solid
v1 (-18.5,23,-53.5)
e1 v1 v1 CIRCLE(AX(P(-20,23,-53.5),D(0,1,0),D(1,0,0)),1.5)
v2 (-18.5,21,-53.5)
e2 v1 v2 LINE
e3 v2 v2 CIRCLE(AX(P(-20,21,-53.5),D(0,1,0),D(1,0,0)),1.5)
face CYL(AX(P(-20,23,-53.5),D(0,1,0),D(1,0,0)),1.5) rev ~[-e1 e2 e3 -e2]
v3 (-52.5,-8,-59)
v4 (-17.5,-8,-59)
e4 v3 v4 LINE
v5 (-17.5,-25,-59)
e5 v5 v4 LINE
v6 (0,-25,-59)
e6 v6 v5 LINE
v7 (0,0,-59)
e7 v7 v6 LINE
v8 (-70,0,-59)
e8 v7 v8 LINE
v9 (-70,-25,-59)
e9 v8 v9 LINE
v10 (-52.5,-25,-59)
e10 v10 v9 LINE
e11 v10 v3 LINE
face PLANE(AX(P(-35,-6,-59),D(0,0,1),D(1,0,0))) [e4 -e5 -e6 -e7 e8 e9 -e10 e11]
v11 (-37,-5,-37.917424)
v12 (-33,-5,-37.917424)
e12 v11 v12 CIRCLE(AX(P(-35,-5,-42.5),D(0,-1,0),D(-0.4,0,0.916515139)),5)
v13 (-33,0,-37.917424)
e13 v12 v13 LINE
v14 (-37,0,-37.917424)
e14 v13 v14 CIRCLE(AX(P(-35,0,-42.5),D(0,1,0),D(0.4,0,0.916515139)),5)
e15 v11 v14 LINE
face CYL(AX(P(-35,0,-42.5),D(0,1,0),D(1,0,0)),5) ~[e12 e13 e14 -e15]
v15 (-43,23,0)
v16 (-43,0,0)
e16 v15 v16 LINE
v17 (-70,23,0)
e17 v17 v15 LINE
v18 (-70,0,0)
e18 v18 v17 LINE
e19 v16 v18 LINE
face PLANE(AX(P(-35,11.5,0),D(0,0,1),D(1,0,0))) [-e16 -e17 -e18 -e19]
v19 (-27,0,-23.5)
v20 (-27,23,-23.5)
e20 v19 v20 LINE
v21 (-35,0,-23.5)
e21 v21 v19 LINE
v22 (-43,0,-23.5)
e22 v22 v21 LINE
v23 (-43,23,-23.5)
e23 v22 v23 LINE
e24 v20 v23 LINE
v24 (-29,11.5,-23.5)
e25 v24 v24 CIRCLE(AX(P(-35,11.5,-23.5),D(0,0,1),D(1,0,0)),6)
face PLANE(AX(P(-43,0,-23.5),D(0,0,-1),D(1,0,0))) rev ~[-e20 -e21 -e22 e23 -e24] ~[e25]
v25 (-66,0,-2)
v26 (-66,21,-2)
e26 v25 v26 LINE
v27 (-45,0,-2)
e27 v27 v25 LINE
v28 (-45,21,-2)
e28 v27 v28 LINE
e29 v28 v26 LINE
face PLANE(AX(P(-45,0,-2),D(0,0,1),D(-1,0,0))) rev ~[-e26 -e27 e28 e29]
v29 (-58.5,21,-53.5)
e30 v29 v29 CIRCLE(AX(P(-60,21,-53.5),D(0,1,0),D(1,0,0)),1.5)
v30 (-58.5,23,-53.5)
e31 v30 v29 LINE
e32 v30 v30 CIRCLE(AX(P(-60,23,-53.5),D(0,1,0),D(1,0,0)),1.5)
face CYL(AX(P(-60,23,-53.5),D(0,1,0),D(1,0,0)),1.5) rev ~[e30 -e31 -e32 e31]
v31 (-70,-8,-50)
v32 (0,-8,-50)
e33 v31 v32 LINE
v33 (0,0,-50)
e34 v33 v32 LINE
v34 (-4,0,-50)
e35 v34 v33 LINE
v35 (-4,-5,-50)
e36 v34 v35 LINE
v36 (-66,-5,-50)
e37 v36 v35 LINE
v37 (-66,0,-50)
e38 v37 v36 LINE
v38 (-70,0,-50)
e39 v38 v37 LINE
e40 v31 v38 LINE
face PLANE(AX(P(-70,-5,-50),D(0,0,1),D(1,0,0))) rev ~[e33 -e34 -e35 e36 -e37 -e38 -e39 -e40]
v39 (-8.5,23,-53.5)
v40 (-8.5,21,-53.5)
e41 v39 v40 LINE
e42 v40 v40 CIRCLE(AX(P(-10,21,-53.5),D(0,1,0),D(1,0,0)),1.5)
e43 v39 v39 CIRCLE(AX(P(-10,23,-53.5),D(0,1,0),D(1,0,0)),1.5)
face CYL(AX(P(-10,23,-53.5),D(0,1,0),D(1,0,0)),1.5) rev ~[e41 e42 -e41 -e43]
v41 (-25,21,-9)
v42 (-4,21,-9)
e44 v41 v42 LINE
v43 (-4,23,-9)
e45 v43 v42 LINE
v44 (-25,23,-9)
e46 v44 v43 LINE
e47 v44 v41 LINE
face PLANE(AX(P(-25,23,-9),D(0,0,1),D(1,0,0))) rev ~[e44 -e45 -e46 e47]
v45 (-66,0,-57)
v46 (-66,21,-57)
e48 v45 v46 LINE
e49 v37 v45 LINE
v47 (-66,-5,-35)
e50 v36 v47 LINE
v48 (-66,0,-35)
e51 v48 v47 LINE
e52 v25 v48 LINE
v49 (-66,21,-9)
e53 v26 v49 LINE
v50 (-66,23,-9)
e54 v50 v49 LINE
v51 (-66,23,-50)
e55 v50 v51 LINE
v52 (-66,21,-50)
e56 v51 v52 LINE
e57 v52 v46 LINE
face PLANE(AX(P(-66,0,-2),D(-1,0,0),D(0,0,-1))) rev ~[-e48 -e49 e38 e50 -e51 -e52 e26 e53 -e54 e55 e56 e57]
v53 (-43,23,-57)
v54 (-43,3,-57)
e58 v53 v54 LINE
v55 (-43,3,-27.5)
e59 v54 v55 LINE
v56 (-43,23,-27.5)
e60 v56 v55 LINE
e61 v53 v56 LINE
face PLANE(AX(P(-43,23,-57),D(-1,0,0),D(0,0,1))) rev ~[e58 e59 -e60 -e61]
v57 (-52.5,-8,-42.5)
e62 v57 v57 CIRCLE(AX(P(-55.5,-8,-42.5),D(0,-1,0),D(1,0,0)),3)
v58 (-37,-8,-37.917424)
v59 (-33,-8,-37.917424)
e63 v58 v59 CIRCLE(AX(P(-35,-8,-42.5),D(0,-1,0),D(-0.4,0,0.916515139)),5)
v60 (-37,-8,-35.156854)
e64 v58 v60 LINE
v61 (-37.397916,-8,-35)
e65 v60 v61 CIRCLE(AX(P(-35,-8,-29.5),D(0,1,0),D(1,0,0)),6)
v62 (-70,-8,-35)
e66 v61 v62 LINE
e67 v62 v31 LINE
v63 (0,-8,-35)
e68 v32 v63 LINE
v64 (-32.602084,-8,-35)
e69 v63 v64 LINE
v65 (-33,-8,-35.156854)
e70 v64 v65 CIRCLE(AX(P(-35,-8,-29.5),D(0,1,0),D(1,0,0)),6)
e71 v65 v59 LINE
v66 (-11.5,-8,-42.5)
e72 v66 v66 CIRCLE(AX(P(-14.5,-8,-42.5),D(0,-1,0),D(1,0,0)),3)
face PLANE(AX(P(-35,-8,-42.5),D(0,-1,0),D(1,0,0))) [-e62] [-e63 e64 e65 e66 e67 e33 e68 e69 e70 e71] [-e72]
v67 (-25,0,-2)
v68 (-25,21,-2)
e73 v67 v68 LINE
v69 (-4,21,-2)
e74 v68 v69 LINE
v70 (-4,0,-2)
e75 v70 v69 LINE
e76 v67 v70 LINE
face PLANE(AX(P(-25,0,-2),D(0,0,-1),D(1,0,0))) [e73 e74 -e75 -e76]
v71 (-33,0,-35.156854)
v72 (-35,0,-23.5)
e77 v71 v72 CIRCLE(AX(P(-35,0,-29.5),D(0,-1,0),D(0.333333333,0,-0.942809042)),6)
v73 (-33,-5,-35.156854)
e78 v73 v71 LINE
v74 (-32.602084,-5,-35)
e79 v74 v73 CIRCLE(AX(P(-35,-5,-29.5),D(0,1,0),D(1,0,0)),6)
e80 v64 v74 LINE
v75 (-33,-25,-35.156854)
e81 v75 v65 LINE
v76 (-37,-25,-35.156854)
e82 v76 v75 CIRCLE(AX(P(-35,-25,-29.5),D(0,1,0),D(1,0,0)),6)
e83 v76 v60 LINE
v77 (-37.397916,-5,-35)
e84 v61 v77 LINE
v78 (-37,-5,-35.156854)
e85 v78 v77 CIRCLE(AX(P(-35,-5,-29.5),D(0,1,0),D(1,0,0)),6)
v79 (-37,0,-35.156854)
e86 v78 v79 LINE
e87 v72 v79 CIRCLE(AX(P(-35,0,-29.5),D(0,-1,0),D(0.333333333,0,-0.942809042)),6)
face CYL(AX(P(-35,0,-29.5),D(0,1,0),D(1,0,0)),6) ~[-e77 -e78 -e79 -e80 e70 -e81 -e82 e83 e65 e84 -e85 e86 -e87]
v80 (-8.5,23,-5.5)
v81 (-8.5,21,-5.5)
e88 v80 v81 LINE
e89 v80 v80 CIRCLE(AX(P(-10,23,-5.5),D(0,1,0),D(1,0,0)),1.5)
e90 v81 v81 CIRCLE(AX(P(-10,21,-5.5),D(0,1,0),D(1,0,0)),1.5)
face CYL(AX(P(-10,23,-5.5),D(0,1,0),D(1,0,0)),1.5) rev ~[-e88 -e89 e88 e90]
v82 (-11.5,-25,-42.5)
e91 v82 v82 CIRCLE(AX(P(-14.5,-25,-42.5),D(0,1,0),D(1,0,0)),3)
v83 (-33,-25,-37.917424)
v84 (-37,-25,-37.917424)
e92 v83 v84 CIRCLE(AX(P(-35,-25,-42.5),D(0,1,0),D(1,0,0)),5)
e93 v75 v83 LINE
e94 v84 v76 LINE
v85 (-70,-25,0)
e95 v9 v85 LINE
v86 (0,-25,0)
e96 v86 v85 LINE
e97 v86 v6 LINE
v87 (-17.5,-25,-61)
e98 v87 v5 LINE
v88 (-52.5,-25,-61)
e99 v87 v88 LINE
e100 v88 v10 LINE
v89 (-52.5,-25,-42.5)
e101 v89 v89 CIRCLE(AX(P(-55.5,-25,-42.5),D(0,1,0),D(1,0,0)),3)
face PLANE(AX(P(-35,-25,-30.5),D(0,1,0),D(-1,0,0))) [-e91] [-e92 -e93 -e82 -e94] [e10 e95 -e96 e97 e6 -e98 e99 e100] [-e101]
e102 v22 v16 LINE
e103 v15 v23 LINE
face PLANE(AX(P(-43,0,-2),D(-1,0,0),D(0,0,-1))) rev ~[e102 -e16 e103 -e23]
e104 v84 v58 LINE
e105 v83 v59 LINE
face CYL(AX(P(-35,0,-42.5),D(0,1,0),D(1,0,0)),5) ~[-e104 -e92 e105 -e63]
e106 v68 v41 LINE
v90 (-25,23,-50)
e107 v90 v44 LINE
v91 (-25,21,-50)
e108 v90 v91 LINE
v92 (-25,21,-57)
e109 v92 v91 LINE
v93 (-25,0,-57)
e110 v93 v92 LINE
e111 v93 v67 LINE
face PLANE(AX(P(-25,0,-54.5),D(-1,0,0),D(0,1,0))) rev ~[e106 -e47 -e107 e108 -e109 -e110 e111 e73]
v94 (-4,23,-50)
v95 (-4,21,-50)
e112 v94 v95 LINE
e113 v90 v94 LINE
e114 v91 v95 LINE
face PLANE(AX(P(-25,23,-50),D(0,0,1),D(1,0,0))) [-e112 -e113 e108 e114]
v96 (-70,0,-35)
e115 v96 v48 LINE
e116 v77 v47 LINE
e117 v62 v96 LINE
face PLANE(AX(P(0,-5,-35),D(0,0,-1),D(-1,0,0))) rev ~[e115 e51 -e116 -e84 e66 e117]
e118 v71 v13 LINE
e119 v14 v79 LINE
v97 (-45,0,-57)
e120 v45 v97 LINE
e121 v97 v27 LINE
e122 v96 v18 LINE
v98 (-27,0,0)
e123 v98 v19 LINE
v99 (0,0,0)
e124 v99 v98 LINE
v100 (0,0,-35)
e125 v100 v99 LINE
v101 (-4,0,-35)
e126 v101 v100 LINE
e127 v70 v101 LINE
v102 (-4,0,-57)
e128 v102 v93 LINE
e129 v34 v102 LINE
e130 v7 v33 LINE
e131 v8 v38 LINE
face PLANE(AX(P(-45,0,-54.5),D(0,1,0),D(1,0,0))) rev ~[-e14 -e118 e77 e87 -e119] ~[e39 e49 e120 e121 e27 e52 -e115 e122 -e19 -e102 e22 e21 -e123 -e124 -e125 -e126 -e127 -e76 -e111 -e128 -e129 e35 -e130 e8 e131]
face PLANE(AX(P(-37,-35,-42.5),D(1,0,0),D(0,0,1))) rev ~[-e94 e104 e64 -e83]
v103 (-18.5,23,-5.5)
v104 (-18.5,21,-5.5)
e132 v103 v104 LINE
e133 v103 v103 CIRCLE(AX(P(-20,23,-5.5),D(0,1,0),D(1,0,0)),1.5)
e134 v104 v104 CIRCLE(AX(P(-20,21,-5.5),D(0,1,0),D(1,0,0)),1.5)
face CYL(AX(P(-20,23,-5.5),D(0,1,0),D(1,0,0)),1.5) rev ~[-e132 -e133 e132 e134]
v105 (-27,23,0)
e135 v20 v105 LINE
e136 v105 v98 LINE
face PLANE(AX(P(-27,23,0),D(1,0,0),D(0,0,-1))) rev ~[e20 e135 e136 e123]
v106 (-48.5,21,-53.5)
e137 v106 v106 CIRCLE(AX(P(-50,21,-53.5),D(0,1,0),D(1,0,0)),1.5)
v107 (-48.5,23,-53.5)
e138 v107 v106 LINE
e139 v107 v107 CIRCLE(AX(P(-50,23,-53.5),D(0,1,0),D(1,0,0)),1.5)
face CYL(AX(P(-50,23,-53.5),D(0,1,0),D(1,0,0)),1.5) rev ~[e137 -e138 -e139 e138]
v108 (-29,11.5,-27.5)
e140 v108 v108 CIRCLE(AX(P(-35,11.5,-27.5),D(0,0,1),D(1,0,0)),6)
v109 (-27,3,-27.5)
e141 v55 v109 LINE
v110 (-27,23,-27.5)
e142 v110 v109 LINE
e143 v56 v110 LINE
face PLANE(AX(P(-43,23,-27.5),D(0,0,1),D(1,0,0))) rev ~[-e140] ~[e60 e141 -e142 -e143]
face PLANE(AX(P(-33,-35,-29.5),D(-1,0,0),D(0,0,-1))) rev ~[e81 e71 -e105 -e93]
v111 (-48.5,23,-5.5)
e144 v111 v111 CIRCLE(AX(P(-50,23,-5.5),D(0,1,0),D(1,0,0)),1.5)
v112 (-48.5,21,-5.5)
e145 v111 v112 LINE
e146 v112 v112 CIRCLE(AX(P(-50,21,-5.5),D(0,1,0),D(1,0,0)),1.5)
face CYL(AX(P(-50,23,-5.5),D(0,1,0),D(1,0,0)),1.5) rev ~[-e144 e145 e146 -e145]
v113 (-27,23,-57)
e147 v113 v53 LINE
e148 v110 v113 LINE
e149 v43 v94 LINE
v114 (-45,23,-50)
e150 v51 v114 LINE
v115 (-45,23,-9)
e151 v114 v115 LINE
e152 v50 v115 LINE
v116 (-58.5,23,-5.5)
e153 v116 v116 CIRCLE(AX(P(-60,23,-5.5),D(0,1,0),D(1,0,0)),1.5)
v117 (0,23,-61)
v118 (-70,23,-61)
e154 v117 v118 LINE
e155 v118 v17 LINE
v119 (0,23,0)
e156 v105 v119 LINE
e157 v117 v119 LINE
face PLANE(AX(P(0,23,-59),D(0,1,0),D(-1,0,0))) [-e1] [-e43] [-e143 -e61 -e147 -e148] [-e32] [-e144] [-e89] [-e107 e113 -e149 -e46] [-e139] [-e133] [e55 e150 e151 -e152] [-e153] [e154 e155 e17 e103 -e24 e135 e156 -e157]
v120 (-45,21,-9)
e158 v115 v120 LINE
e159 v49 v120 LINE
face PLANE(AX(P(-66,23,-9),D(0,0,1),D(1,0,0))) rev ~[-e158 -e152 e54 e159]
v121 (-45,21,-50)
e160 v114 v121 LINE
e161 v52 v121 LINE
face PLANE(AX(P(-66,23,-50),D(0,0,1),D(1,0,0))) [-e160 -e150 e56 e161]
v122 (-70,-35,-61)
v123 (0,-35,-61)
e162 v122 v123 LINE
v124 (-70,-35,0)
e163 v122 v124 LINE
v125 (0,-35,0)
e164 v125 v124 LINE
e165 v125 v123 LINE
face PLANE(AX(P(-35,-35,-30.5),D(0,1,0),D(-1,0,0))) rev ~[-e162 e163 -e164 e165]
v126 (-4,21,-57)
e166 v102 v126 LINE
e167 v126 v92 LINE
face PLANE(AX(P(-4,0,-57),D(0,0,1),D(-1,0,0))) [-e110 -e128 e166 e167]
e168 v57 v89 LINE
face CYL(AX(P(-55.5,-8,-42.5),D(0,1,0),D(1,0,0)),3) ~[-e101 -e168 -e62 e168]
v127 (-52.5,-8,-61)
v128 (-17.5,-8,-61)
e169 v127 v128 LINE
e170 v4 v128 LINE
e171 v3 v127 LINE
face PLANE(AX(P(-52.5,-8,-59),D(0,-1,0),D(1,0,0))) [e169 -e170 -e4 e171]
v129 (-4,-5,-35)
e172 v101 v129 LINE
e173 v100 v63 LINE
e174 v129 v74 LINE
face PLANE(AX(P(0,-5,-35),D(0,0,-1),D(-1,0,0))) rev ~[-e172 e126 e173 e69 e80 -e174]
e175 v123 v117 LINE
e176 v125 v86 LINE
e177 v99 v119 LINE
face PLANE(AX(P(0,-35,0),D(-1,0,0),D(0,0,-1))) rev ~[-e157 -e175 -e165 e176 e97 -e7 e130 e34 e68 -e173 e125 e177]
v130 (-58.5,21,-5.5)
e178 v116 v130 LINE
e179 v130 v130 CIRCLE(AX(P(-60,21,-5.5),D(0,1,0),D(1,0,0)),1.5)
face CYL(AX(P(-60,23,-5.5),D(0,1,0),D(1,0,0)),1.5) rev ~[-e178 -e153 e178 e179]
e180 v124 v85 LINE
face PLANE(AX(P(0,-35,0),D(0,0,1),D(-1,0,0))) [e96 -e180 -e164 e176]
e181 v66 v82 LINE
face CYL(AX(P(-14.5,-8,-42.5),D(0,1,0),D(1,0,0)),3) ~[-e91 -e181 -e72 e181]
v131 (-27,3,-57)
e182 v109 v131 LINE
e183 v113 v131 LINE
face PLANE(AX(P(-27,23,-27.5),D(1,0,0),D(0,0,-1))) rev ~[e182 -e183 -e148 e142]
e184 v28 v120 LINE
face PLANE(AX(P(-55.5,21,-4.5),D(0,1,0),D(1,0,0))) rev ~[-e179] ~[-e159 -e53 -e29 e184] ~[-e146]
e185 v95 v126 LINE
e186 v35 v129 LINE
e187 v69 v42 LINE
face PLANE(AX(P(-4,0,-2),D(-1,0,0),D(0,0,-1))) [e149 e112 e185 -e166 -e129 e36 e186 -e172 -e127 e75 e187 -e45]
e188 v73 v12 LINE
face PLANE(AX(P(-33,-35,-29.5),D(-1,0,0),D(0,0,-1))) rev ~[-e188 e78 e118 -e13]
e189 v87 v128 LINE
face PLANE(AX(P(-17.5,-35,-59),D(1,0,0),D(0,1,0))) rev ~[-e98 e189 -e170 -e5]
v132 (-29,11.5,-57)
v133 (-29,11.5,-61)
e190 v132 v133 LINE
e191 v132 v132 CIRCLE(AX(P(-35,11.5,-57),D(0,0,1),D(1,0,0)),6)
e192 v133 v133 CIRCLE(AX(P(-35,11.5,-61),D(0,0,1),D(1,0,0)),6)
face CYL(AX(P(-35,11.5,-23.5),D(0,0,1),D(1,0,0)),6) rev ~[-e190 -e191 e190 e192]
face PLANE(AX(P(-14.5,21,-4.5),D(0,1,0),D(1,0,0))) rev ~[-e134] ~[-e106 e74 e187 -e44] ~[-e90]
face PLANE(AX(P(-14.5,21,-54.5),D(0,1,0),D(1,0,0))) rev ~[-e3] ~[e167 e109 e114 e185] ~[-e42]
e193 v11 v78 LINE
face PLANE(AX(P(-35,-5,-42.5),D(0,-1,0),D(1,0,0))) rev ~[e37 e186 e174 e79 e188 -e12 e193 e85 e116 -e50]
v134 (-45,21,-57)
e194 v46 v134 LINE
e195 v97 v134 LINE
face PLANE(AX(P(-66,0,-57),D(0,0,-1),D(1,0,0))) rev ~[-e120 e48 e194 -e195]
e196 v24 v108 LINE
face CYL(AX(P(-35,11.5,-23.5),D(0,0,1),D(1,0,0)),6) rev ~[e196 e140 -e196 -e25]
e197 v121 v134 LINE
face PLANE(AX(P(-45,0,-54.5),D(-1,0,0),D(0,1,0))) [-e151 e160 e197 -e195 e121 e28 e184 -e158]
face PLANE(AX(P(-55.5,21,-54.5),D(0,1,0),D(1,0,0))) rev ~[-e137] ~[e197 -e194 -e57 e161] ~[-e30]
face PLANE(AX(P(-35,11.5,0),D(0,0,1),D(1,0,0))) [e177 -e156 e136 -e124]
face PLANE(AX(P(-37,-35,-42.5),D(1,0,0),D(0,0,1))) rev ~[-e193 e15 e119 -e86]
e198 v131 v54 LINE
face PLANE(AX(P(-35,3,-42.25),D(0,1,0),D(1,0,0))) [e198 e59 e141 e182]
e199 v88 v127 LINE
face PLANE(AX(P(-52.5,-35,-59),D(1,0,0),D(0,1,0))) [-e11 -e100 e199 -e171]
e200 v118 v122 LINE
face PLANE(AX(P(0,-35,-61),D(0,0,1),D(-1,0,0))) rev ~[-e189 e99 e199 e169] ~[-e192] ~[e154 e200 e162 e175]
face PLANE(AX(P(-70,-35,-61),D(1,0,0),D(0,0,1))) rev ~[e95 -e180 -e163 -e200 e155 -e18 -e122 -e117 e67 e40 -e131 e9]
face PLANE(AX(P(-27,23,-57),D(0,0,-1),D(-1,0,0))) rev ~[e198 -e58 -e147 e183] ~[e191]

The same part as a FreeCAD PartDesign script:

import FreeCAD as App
import Part
import Sketcher

V = App.Vector
Q = App.Units.Quantity

doc = App.newDocument("Part")
body = doc.addObject("PartDesign::Body", "Body")

sketch1 = body.newObject("Sketcher::SketchObject", "Sketch")
sketch1.AttachmentSupport = (doc.getObject("XZ_Plane"), [""])
sketch1.MapMode = "FlatFace"
sketch1.addGeometry([
    Part.LineSegment(V(-66, -57, 0), V(-45, -57, 0)),
    Part.LineSegment(V(-45, -57, 0), V(-45, -59, 0)),
    Part.LineSegment(V(-45, -59, 0), V(-70, -59, 0)),
    Part.LineSegment(V(-70, -59, 0), V(-70, 0, 0)),
    Part.LineSegment(V(-70, 0, 0), V(-45, 0, 0)),
    Part.LineSegment(V(-45, 0, 0), V(-45, -2, 0)),
    Part.LineSegment(V(-45, -2, 0), V(-66, -2, 0)),
    Part.LineSegment(V(-66, -2, 0), V(-66, -57, 0)),
], False)
sketch1.addConstraint([
    Sketcher.Constraint("Coincident", 0, 2, 1, 1),
    Sketcher.Constraint("Coincident", 1, 2, 2, 1),
    Sketcher.Constraint("Coincident", 2, 2, 3, 1),
    Sketcher.Constraint("Coincident", 3, 2, 4, 1),
    Sketcher.Constraint("Coincident", 4, 2, 5, 1),
    Sketcher.Constraint("Coincident", 5, 2, 6, 1),
    Sketcher.Constraint("Coincident", 6, 2, 7, 1),
    Sketcher.Constraint("Coincident", 7, 2, 0, 1),
    Sketcher.Constraint("Horizontal", 0),
    Sketcher.Constraint("Vertical", 1),
    Sketcher.Constraint("Horizontal", 2),
    Sketcher.Constraint("Vertical", 3),
    Sketcher.Constraint("Horizontal", 4),
    Sketcher.Constraint("Vertical", 5),
    Sketcher.Constraint("Horizontal", 6),
    Sketcher.Constraint("Vertical", 7),
    Sketcher.Constraint("PointOnObject", 3, 2, -1),
    Sketcher.Constraint("Vertical", 1, 2, 4, 2),
    Sketcher.Constraint("Equal", 1, 5),
    Sketcher.Constraint("DistanceX", 0, 1, 0, 2, Q("21 mm")),
    Sketcher.Constraint("DistanceX", 2, 2, 2, 1, Q("25 mm")),
    Sketcher.Constraint("DistanceY", 1, 2, 1, 1, Q("2 mm")),
    Sketcher.Constraint("DistanceY", 3, 1, 3, 2, Q("59 mm")),
    Sketcher.Constraint("DistanceX", 0, 2, -1, 1, Q("45 mm")),
])
pad1 = body.newObject("PartDesign::Pad", "Pad")
pad1.Profile = sketch1
pad1.Length = 23
pad1.Reversed = True
body2 = doc.addObject("PartDesign::Body", "Body001")

sketch2 = body2.newObject("Sketcher::SketchObject", "Sketch001")
sketch2.AttachmentSupport = (doc.getObject("XZ_Plane001"), [""])
sketch2.MapMode = "FlatFace"
sketch2.addGeometry([
    Part.LineSegment(V(-4, -2, 0), V(-25, -2, 0)),
    Part.LineSegment(V(-25, -2, 0), V(-25, 0, 0)),
    Part.LineSegment(V(-25, 0, 0), V(0, 0, 0)),
    Part.LineSegment(V(0, 0, 0), V(0, -59, 0)),
    Part.LineSegment(V(0, -59, 0), V(-25, -59, 0)),
    Part.LineSegment(V(-25, -59, 0), V(-25, -57, 0)),
    Part.LineSegment(V(-25, -57, 0), V(-4, -57, 0)),
    Part.LineSegment(V(-4, -57, 0), V(-4, -2, 0)),
], False)
sketch2.addConstraint([
    Sketcher.Constraint("Coincident", 0, 2, 1, 1),
    Sketcher.Constraint("Coincident", 1, 2, 2, 1),
    Sketcher.Constraint("Coincident", 2, 2, 3, 1),
    Sketcher.Constraint("Coincident", 3, 2, 4, 1),
    Sketcher.Constraint("Coincident", 4, 2, 5, 1),
    Sketcher.Constraint("Coincident", 5, 2, 6, 1),
    Sketcher.Constraint("Coincident", 6, 2, 7, 1),
    Sketcher.Constraint("Coincident", 7, 2, 0, 1),
    Sketcher.Constraint("Horizontal", 0),
    Sketcher.Constraint("Vertical", 1),
    Sketcher.Constraint("Horizontal", 2),
    Sketcher.Constraint("Vertical", 3),
    Sketcher.Constraint("Horizontal", 4),
    Sketcher.Constraint("Vertical", 5),
    Sketcher.Constraint("Horizontal", 6),
    Sketcher.Constraint("Vertical", 7),
    Sketcher.Constraint("Coincident", 2, 2, -1, 1),
    Sketcher.Constraint("Vertical", 1, 2, 4, 2),
    Sketcher.Constraint("Equal", 1, 5),
    Sketcher.Constraint("DistanceX", 0, 2, 0, 1, Q("21 mm")),
    Sketcher.Constraint("DistanceX", 2, 1, 2, 2, Q("25 mm")),
    Sketcher.Constraint("DistanceY", 1, 1, 1, 2, Q("2 mm")),
    Sketcher.Constraint("DistanceY", 3, 2, 3, 1, Q("59 mm")),
])
pad2 = body2.newObject("PartDesign::Pad", "Pad001")
pad2.Profile = sketch2
pad2.Length = 23
pad2.Reversed = True
body.AllowCompound = True
doc.recompute()

boolean = body.newObject("PartDesign::Boolean", "Boolean")
boolean.Type = "Fuse"
boolean.addObjects([body2])

sketch3 = body.newObject("Sketcher::SketchObject", "Sketch002")
sketch3.AttachmentSupport = (doc.getObject("XZ_Plane"), [""])
sketch3.MapMode = "FlatFace"
sketch3.AttachmentOffset = App.Placement(V(0, 0, -23), App.Rotation())
sketch3.addGeometry([
    Part.LineSegment(V(-66, -59, 0), V(-66, -50, 0)),
    Part.LineSegment(V(-66, -50, 0), V(-45, -50, 0)),
    Part.LineSegment(V(-45, -50, 0), V(-45, -59, 0)),
    Part.LineSegment(V(-45, -59, 0), V(-66, -59, 0)),
    Part.LineSegment(V(-25, -59, 0), V(-25, -50, 0)),
    Part.LineSegment(V(-25, -50, 0), V(-4, -50, 0)),
    Part.LineSegment(V(-4, -50, 0), V(-4, -59, 0)),
    Part.LineSegment(V(-4, -59, 0), V(-25, -59, 0)),
    Part.LineSegment(V(-66, -9, 0), V(-66, 0, 0)),
    Part.LineSegment(V(-66, 0, 0), V(-45, 0, 0)),
    Part.LineSegment(V(-45, 0, 0), V(-45, -9, 0)),
    Part.LineSegment(V(-45, -9, 0), V(-66, -9, 0)),
    Part.LineSegment(V(-25, -9, 0), V(-25, 0, 0)),
    Part.LineSegment(V(-25, 0, 0), V(-4, 0, 0)),
    Part.LineSegment(V(-4, 0, 0), V(-4, -9, 0)),
    Part.LineSegment(V(-4, -9, 0), V(-25, -9, 0)),
], False)
sketch3.addConstraint([
    Sketcher.Constraint("Coincident", 0, 2, 1, 1),
    Sketcher.Constraint("Coincident", 1, 2, 2, 1),
    Sketcher.Constraint("Coincident", 2, 2, 3, 1),
    Sketcher.Constraint("Coincident", 3, 2, 0, 1),
    Sketcher.Constraint("Coincident", 4, 2, 5, 1),
    Sketcher.Constraint("Coincident", 5, 2, 6, 1),
    Sketcher.Constraint("Coincident", 6, 2, 7, 1),
    Sketcher.Constraint("Coincident", 7, 2, 4, 1),
    Sketcher.Constraint("Coincident", 8, 2, 9, 1),
    Sketcher.Constraint("Coincident", 9, 2, 10, 1),
    Sketcher.Constraint("Coincident", 10, 2, 11, 1),
    Sketcher.Constraint("Coincident", 11, 2, 8, 1),
    Sketcher.Constraint("Coincident", 12, 2, 13, 1),
    Sketcher.Constraint("Coincident", 13, 2, 14, 1),
    Sketcher.Constraint("Coincident", 14, 2, 15, 1),
    Sketcher.Constraint("Coincident", 15, 2, 12, 1),
    Sketcher.Constraint("Vertical", 0),
    Sketcher.Constraint("Horizontal", 1),
    Sketcher.Constraint("Vertical", 2),
    Sketcher.Constraint("Horizontal", 3),
    Sketcher.Constraint("Vertical", 4),
    Sketcher.Constraint("Horizontal", 5),
    Sketcher.Constraint("Vertical", 6),
    Sketcher.Constraint("Horizontal", 7),
    Sketcher.Constraint("Vertical", 8),
    Sketcher.Constraint("Horizontal", 9),
    Sketcher.Constraint("Vertical", 10),
    Sketcher.Constraint("Horizontal", 11),
    Sketcher.Constraint("Vertical", 12),
    Sketcher.Constraint("Horizontal", 13),
    Sketcher.Constraint("Vertical", 14),
    Sketcher.Constraint("Horizontal", 15),
    Sketcher.Constraint("PointOnObject", 8, 2, -1),
    Sketcher.Constraint("PointOnObject", 12, 2, -1),
    Sketcher.Constraint("Horizontal", 1, 2, 4, 2),
    Sketcher.Constraint("Horizontal", 3, 2, 6, 2),
    Sketcher.Constraint("Horizontal", 11, 2, 14, 2),
    Sketcher.Constraint("Vertical", 3, 2, 8, 2),
    Sketcher.Constraint("Vertical", 2, 2, 9, 2),
    Sketcher.Constraint("Vertical", 7, 2, 12, 2),
    Sketcher.Constraint("Vertical", 6, 2, 13, 2),
    Sketcher.Constraint("Equal", 3, 5),
    Sketcher.Constraint("Equal", 6, 8),
    Sketcher.Constraint("DistanceX", 1, 1, 1, 2, Q("21 mm")),
    Sketcher.Constraint("DistanceY", 0, 1, 0, 2, Q("9 mm")),
    Sketcher.Constraint("DistanceX", 0, 2, -1, 1, Q("66 mm")),
    Sketcher.Constraint("DistanceY", 0, 2, -1, 1, Q("50 mm")),
    Sketcher.Constraint("DistanceX", 4, 2, -1, 1, Q("25 mm")),
])
pad3 = body.newObject("PartDesign::Pad", "Pad002")
pad3.Profile = sketch3
pad3.Length = 2

sketch4 = body.newObject("Sketcher::SketchObject", "Sketch003")
sketch4.AttachmentSupport = (doc.getObject("XZ_Plane"), [""])
sketch4.MapMode = "FlatFace"
sketch4.AttachmentOffset = App.Placement(V(0, 0, -23), App.Rotation())
sketch4.addGeometry([
    Part.Circle(V(-50, -53.5, 0), V(0, 0, 1), 1.5),
    Part.Circle(V(-60, -53.5, 0), V(0, 0, 1), 1.5),
    Part.Circle(V(-20, -53.5, 0), V(0, 0, 1), 1.5),
    Part.Circle(V(-10, -53.5, 0), V(0, 0, 1), 1.5),
    Part.Circle(V(-60, -5.5, 0), V(0, 0, 1), 1.5),
    Part.Circle(V(-50, -5.5, 0), V(0, 0, 1), 1.5),
    Part.Circle(V(-20, -5.5, 0), V(0, 0, 1), 1.5),
    Part.Circle(V(-10, -5.5, 0), V(0, 0, 1), 1.5),
], False)
sketch4.addConstraint([
    Sketcher.Constraint("Equal", 0, 1),
    Sketcher.Constraint("Equal", 1, 2),
    Sketcher.Constraint("Equal", 2, 3),
    Sketcher.Constraint("Equal", 3, 4),
    Sketcher.Constraint("Equal", 4, 5),
    Sketcher.Constraint("Equal", 5, 6),
    Sketcher.Constraint("Equal", 6, 7),
    Sketcher.Constraint("Horizontal", 0, 3, 1, 3),
    Sketcher.Constraint("Horizontal", 1, 3, 2, 3),
    Sketcher.Constraint("Horizontal", 2, 3, 3, 3),
    Sketcher.Constraint("Horizontal", 4, 3, 5, 3),
    Sketcher.Constraint("Horizontal", 5, 3, 6, 3),
    Sketcher.Constraint("Horizontal", 6, 3, 7, 3),
    Sketcher.Constraint("Vertical", 1, 3, 4, 3),
    Sketcher.Constraint("Vertical", 0, 3, 5, 3),
    Sketcher.Constraint("Vertical", 2, 3, 6, 3),
    Sketcher.Constraint("Vertical", 3, 3, 7, 3),
    Sketcher.Constraint("Diameter", 0, Q("3 mm")),
    Sketcher.Constraint("DistanceX", 0, 3, -1, 1, Q("50 mm")),
    Sketcher.Constraint("DistanceX", 1, 3, -1, 1, Q("60 mm")),
    Sketcher.Constraint("DistanceX", 2, 3, -1, 1, Q("20 mm")),
    Sketcher.Constraint("DistanceX", 3, 3, -1, 1, Q("10 mm")),
    Sketcher.Constraint("DistanceY", 1, 3, 4, 3, Q("48 mm")),
    Sketcher.Constraint("DistanceY", 0, 3, -1, 1, Q("53.5 mm")),
])
pocket1 = body.newObject("PartDesign::Pocket", "Pocket")
pocket1.Profile = sketch4
pocket1.Length = 2
pocket1.Reversed = True

sketch5 = body.newObject("Sketcher::SketchObject", "Sketch004")
sketch5.AttachmentSupport = (doc.getObject("YZ_Plane"), [""])
sketch5.MapMode = "FlatFace"
sketch5.AttachmentOffset = App.Placement(V(0, 0, -25), App.Rotation())
sketch5.addGeometry([
    Part.LineSegment(V(23, -59, 0), V(0, -59, 0)),
    Part.LineSegment(V(0, -59, 0), V(0, -54.5, 0)),
    Part.LineSegment(V(0, -54.5, 0), V(23, -54.5, 0)),
    Part.LineSegment(V(23, -54.5, 0), V(23, -59, 0)),
], False)
sketch5.addConstraint([
    Sketcher.Constraint("Coincident", 0, 2, 1, 1),
    Sketcher.Constraint("Coincident", 1, 2, 2, 1),
    Sketcher.Constraint("Coincident", 2, 2, 3, 1),
    Sketcher.Constraint("Coincident", 3, 2, 0, 1),
    Sketcher.Constraint("Horizontal", 0),
    Sketcher.Constraint("Vertical", 1),
    Sketcher.Constraint("Horizontal", 2),
    Sketcher.Constraint("Vertical", 3),
    Sketcher.Constraint("PointOnObject", 0, 2, -2),
    Sketcher.Constraint("DistanceX", 0, 2, 0, 1, Q("23 mm")),
    Sketcher.Constraint("DistanceY", 1, 1, 1, 2, Q("4.5 mm")),
    Sketcher.Constraint("DistanceY", 0, 2, -1, 1, Q("59 mm")),
])
pad4 = body.newObject("PartDesign::Pad", "Pad003")
pad4.Profile = sketch5
pad4.Length = 20
pad4.Reversed = True

sketch6 = body.newObject("Sketcher::SketchObject", "Sketch005")
sketch6.AttachmentSupport = (doc.getObject("XY_Plane"), [""])
sketch6.MapMode = "FlatFace"
sketch6.AttachmentOffset = App.Placement(V(0, 0, -54.5), App.Rotation())
sketch6.addGeometry([
    Part.LineSegment(V(-45, 23, 0), V(-45, 0, 0)),
    Part.LineSegment(V(-45, 0, 0), V(-25, 0, 0)),
    Part.LineSegment(V(-25, 0, 0), V(-25, 23, 0)),
    Part.LineSegment(V(-25, 23, 0), V(-45, 23, 0)),
], False)
sketch6.addConstraint([
    Sketcher.Constraint("Coincident", 0, 2, 1, 1),
    Sketcher.Constraint("Coincident", 1, 2, 2, 1),
    Sketcher.Constraint("Coincident", 2, 2, 3, 1),
    Sketcher.Constraint("Coincident", 3, 2, 0, 1),
    Sketcher.Constraint("Vertical", 0),
    Sketcher.Constraint("Horizontal", 1),
    Sketcher.Constraint("Vertical", 2),
    Sketcher.Constraint("Horizontal", 3),
    Sketcher.Constraint("PointOnObject", 0, 2, -1),
    Sketcher.Constraint("DistanceX", 1, 1, 1, 2, Q("20 mm")),
    Sketcher.Constraint("DistanceY", 0, 2, 0, 1, Q("23 mm")),
    Sketcher.Constraint("DistanceX", 0, 2, -1, 1, Q("45 mm")),
])
pad5 = body.newObject("PartDesign::Pad", "Pad004")
pad5.Profile = sketch6
pad5.Length = 54.5

sketch7 = body.newObject("Sketcher::SketchObject", "Sketch006")
sketch7.AttachmentSupport = (doc.getObject("XZ_Plane"), [""])
sketch7.MapMode = "FlatFace"
sketch7.addGeometry(Part.Circle(V(-35, -29.5, 0), V(0, 0, 1), 6), False)
sketch7.addConstraint([
    Sketcher.Constraint("Diameter", 0, Q("12 mm")),
    Sketcher.Constraint("DistanceX", 0, 3, -1, 1, Q("35 mm")),
    Sketcher.Constraint("DistanceY", 0, 3, -1, 1, Q("29.5 mm")),
])
pad6 = body.newObject("PartDesign::Pad", "Pad005")
pad6.Profile = sketch7
pad6.Length = 35

sketch8 = body.newObject("Sketcher::SketchObject", "Sketch007")
sketch8.AttachmentSupport = (doc.getObject("XZ_Plane"), [""])
sketch8.MapMode = "FlatFace"
sketch8.addGeometry([
    Part.LineSegment(V(-4, -35, 0), V(-4, -50, 0)),
    Part.LineSegment(V(-4, -50, 0), V(0, -50, 0)),
    Part.LineSegment(V(0, -50, 0), V(0, -35, 0)),
    Part.LineSegment(V(0, -35, 0), V(-4, -35, 0)),
    Part.LineSegment(V(-70, -35, 0), V(-70, -50, 0)),
    Part.LineSegment(V(-70, -50, 0), V(-66, -50, 0)),
    Part.LineSegment(V(-66, -50, 0), V(-66, -35, 0)),
    Part.LineSegment(V(-66, -35, 0), V(-70, -35, 0)),
], False)
sketch8.addConstraint([
    Sketcher.Constraint("Coincident", 0, 2, 1, 1),
    Sketcher.Constraint("Coincident", 1, 2, 2, 1),
    Sketcher.Constraint("Coincident", 2, 2, 3, 1),
    Sketcher.Constraint("Coincident", 3, 2, 0, 1),
    Sketcher.Constraint("Coincident", 4, 2, 5, 1),
    Sketcher.Constraint("Coincident", 5, 2, 6, 1),
    Sketcher.Constraint("Coincident", 6, 2, 7, 1),
    Sketcher.Constraint("Coincident", 7, 2, 4, 1),
    Sketcher.Constraint("Vertical", 0),
    Sketcher.Constraint("Horizontal", 1),
    Sketcher.Constraint("Vertical", 2),
    Sketcher.Constraint("Horizontal", 3),
    Sketcher.Constraint("Vertical", 4),
    Sketcher.Constraint("Horizontal", 5),
    Sketcher.Constraint("Vertical", 6),
    Sketcher.Constraint("Horizontal", 7),
    Sketcher.Constraint("PointOnObject", 1, 2, -2),
    Sketcher.Constraint("Horizontal", 1, 2, 4, 2),
    Sketcher.Constraint("Horizontal", 3, 2, 6, 2),
    Sketcher.Constraint("Equal", 3, 5),
    Sketcher.Constraint("DistanceX", 1, 1, 1, 2, Q("4 mm")),
    Sketcher.Constraint("DistanceY", 0, 2, 0, 1, Q("15 mm")),
    Sketcher.Constraint("DistanceY", 0, 2, -1, 1, Q("50 mm")),
    Sketcher.Constraint("DistanceX", 4, 2, -1, 1, Q("70 mm")),
])
pad7 = body.newObject("PartDesign::Pad", "Pad006")
pad7.Profile = sketch8
pad7.Length = 5

sketch9 = body.newObject("Sketcher::SketchObject", "Sketch008")
sketch9.AttachmentSupport = (doc.getObject("XZ_Plane"), [""])
sketch9.MapMode = "FlatFace"
sketch9.AttachmentOffset = App.Placement(V(0, 0, 5), App.Rotation())
sketch9.addGeometry([
    Part.LineSegment(V(-70, -50, 0), V(0, -50, 0)),
    Part.LineSegment(V(0, -50, 0), V(0, -35, 0)),
    Part.LineSegment(V(0, -35, 0), V(-70, -35, 0)),
    Part.LineSegment(V(-70, -35, 0), V(-70, -50, 0)),
], False)
sketch9.addConstraint([
    Sketcher.Constraint("Coincident", 0, 2, 1, 1),
    Sketcher.Constraint("Coincident", 1, 2, 2, 1),
    Sketcher.Constraint("Coincident", 2, 2, 3, 1),
    Sketcher.Constraint("Coincident", 3, 2, 0, 1),
    Sketcher.Constraint("Horizontal", 0),
    Sketcher.Constraint("Vertical", 1),
    Sketcher.Constraint("Horizontal", 2),
    Sketcher.Constraint("Vertical", 3),
    Sketcher.Constraint("PointOnObject", 0, 2, -2),
    Sketcher.Constraint("DistanceX", 0, 1, 0, 2, Q("70 mm")),
    Sketcher.Constraint("DistanceY", 1, 1, 1, 2, Q("15 mm")),
    Sketcher.Constraint("DistanceY", 0, 2, -1, 1, Q("50 mm")),
])
pad8 = body.newObject("PartDesign::Pad", "Pad007")
pad8.Profile = sketch9
pad8.Length = 3

sketch10 = body.newObject("Sketcher::SketchObject", "Sketch009")
sketch10.AttachmentSupport = (doc.getObject("XZ_Plane"), [""])
sketch10.MapMode = "FlatFace"
sketch10.addGeometry(Part.Circle(V(-35, -42.5, 0), V(0, 0, 1), 5), False)
sketch10.addConstraint([
    Sketcher.Constraint("Diameter", 0, Q("10 mm")),
    Sketcher.Constraint("DistanceX", 0, 3, -1, 1, Q("35 mm")),
    Sketcher.Constraint("DistanceY", 0, 3, -1, 1, Q("42.5 mm")),
])
pad9 = body.newObject("PartDesign::Pad", "Pad008")
pad9.Profile = sketch10
pad9.Length = 35

sketch11 = body.newObject("Sketcher::SketchObject", "Sketch010")
sketch11.AttachmentSupport = (doc.getObject("XZ_Plane"), [""])
sketch11.MapMode = "FlatFace"
sketch11.AttachmentOffset = App.Placement(V(0, 0, 35), App.Rotation())
sketch11.addGeometry([
    Part.LineSegment(V(-33, -29.5, 0), V(-37, -29.5, 0)),
    Part.LineSegment(V(-37, -29.5, 0), V(-37, -42.5, 0)),
    Part.LineSegment(V(-37, -42.5, 0), V(-33, -42.5, 0)),
    Part.LineSegment(V(-33, -42.5, 0), V(-33, -29.5, 0)),
], False)
sketch11.addConstraint([
    Sketcher.Constraint("Coincident", 0, 2, 1, 1),
    Sketcher.Constraint("Coincident", 1, 2, 2, 1),
    Sketcher.Constraint("Coincident", 2, 2, 3, 1),
    Sketcher.Constraint("Coincident", 3, 2, 0, 1),
    Sketcher.Constraint("Horizontal", 0),
    Sketcher.Constraint("Vertical", 1),
    Sketcher.Constraint("Horizontal", 2),
    Sketcher.Constraint("Vertical", 3),
    Sketcher.Constraint("DistanceX", 0, 2, 0, 1, Q("4 mm")),
    Sketcher.Constraint("DistanceY", 1, 2, 1, 1, Q("13 mm")),
    Sketcher.Constraint("DistanceX", 0, 2, -1, 1, Q("37 mm")),
    Sketcher.Constraint("DistanceY", 0, 2, -1, 1, Q("29.5 mm")),
])
pad10 = body.newObject("PartDesign::Pad", "Pad009")
pad10.Profile = sketch11
pad10.Length = 35
pad10.Reversed = True

sketch12 = body.newObject("Sketcher::SketchObject", "Sketch011")
sketch12.AttachmentSupport = (doc.getObject("XZ_Plane"), [""])
sketch12.MapMode = "FlatFace"
sketch12.AttachmentOffset = App.Placement(V(0, 0, 8), App.Rotation())
sketch12.addGeometry([
    Part.Circle(V(-55.5, -42.5, 0), V(0, 0, 1), 3),
    Part.Circle(V(-14.5, -42.5, 0), V(0, 0, 1), 3),
], False)
sketch12.addConstraint([
    Sketcher.Constraint("Equal", 0, 1),
    Sketcher.Constraint("Horizontal", 0, 3, 1, 3),
    Sketcher.Constraint("Diameter", 0, Q("6 mm")),
    Sketcher.Constraint("DistanceX", 0, 3, 1, 3, Q("41 mm")),
    Sketcher.Constraint("DistanceX", 0, 3, -1, 1, Q("55.5 mm")),
    Sketcher.Constraint("DistanceY", 0, 3, -1, 1, Q("42.5 mm")),
])
pad11 = body.newObject("PartDesign::Pad", "Pad010")
pad11.Profile = sketch12
pad11.Length = 27

sketch13 = body.newObject("Sketcher::SketchObject", "Sketch012")
sketch13.AttachmentSupport = (doc.getObject("XZ_Plane"), [""])
sketch13.MapMode = "FlatFace"
sketch13.addGeometry([
    Part.LineSegment(V(-27, -23.5, 0), V(-27, -2, 0)),
    Part.LineSegment(V(-27, -2, 0), V(-43, -2, 0)),
    Part.LineSegment(V(-43, -2, 0), V(-43, -23.5, 0)),
    Part.LineSegment(V(-43, -23.5, 0), V(-27, -23.5, 0)),
], False)
sketch13.addConstraint([
    Sketcher.Constraint("Coincident", 0, 2, 1, 1),
    Sketcher.Constraint("Coincident", 1, 2, 2, 1),
    Sketcher.Constraint("Coincident", 2, 2, 3, 1),
    Sketcher.Constraint("Coincident", 3, 2, 0, 1),
    Sketcher.Constraint("Vertical", 0),
    Sketcher.Constraint("Horizontal", 1),
    Sketcher.Constraint("Vertical", 2),
    Sketcher.Constraint("Horizontal", 3),
    Sketcher.Constraint("DistanceX", 1, 2, 1, 1, Q("16 mm")),
    Sketcher.Constraint("DistanceY", 0, 1, 0, 2, Q("21.5 mm")),
    Sketcher.Constraint("DistanceX", 0, 2, -1, 1, Q("27 mm")),
    Sketcher.Constraint("DistanceY", 0, 2, -1, 1, Q("2 mm")),
])
pocket2 = body.newObject("PartDesign::Pocket", "Pocket001")
pocket2.Profile = sketch13
pocket2.Length = 27

sketch14 = body.newObject("Sketcher::SketchObject", "Sketch013")
sketch14.AttachmentSupport = (doc.getObject("XZ_Plane"), [""])
sketch14.MapMode = "FlatFace"
sketch14.AttachmentOffset = App.Placement(V(0, 0, -23), App.Rotation())
sketch14.addGeometry([
    Part.LineSegment(V(-27, -57, 0), V(-43, -57, 0)),
    Part.LineSegment(V(-43, -57, 0), V(-43, -27.5, 0)),
    Part.LineSegment(V(-43, -27.5, 0), V(-27, -27.5, 0)),
    Part.LineSegment(V(-27, -27.5, 0), V(-27, -57, 0)),
], False)
sketch14.addConstraint([
    Sketcher.Constraint("Coincident", 0, 2, 1, 1),
    Sketcher.Constraint("Coincident", 1, 2, 2, 1),
    Sketcher.Constraint("Coincident", 2, 2, 3, 1),
    Sketcher.Constraint("Coincident", 3, 2, 0, 1),
    Sketcher.Constraint("Horizontal", 0),
    Sketcher.Constraint("Vertical", 1),
    Sketcher.Constraint("Horizontal", 2),
    Sketcher.Constraint("Vertical", 3),
    Sketcher.Constraint("DistanceX", 0, 2, 0, 1, Q("16 mm")),
    Sketcher.Constraint("DistanceY", 1, 1, 1, 2, Q("29.5 mm")),
    Sketcher.Constraint("DistanceX", 0, 2, -1, 1, Q("43 mm")),
    Sketcher.Constraint("DistanceY", 0, 2, -1, 1, Q("57 mm")),
])
pocket3 = body.newObject("PartDesign::Pocket", "Pocket002")
pocket3.Profile = sketch14
pocket3.Length = 20
pocket3.Reversed = True

sketch15 = body.newObject("Sketcher::SketchObject", "Sketch014")
sketch15.AttachmentSupport = (doc.getObject("XY_Plane"), [""])
sketch15.MapMode = "FlatFace"
sketch15.AttachmentOffset = App.Placement(V(0, 0, -59), App.Rotation())
sketch15.addGeometry([
    Part.LineSegment(V(0, 23, 0), V(0, -35, 0)),
    Part.LineSegment(V(0, -35, 0), V(-70, -35, 0)),
    Part.LineSegment(V(-70, -35, 0), V(-70, 23, 0)),
    Part.LineSegment(V(-70, 23, 0), V(0, 23, 0)),
], False)
sketch15.addConstraint([
    Sketcher.Constraint("Coincident", 0, 2, 1, 1),
    Sketcher.Constraint("Coincident", 1, 2, 2, 1),
    Sketcher.Constraint("Coincident", 2, 2, 3, 1),
    Sketcher.Constraint("Coincident", 3, 2, 0, 1),
    Sketcher.Constraint("Vertical", 0),
    Sketcher.Constraint("Horizontal", 1),
    Sketcher.Constraint("Vertical", 2),
    Sketcher.Constraint("Horizontal", 3),
    Sketcher.Constraint("PointOnObject", 0, 2, -2),
    Sketcher.Constraint("DistanceX", 1, 2, 1, 1, Q("70 mm")),
    Sketcher.Constraint("DistanceY", 0, 2, 0, 1, Q("58 mm")),
    Sketcher.Constraint("DistanceY", 0, 2, -1, 1, Q("35 mm")),
])
pad12 = body.newObject("PartDesign::Pad", "Pad011")
pad12.Profile = sketch15
pad12.Length = 2
pad12.Reversed = True

sketch16 = body.newObject("Sketcher::SketchObject", "Sketch015")
sketch16.AttachmentSupport = (doc.getObject("XY_Plane"), [""])
sketch16.MapMode = "FlatFace"
sketch16.AttachmentOffset = App.Placement(V(0, 0, -59), App.Rotation())
sketch16.addGeometry([
    Part.LineSegment(V(-52.5, -8, 0), V(-52.5, -35, 0)),
    Part.LineSegment(V(-52.5, -35, 0), V(-17.5, -35, 0)),
    Part.LineSegment(V(-17.5, -35, 0), V(-17.5, -8, 0)),
    Part.LineSegment(V(-17.5, -8, 0), V(-52.5, -8, 0)),
], False)
sketch16.addConstraint([
    Sketcher.Constraint("Coincident", 0, 2, 1, 1),
    Sketcher.Constraint("Coincident", 1, 2, 2, 1),
    Sketcher.Constraint("Coincident", 2, 2, 3, 1),
    Sketcher.Constraint("Coincident", 3, 2, 0, 1),
    Sketcher.Constraint("Vertical", 0),
    Sketcher.Constraint("Horizontal", 1),
    Sketcher.Constraint("Vertical", 2),
    Sketcher.Constraint("Horizontal", 3),
    Sketcher.Constraint("DistanceX", 1, 1, 1, 2, Q("35 mm")),
    Sketcher.Constraint("DistanceY", 0, 2, 0, 1, Q("27 mm")),
    Sketcher.Constraint("DistanceY", 0, 2, -1, 1, Q("35 mm")),
    Sketcher.Constraint("DistanceX", 0, 2, -1, 1, Q("52.5 mm")),
])
pocket4 = body.newObject("PartDesign::Pocket", "Pocket003")
pocket4.Profile = sketch16
pocket4.Length = 2

sketch17 = body.newObject("Sketcher::SketchObject", "Sketch016")
sketch17.AttachmentSupport = (doc.getObject("XZ_Plane"), [""])
sketch17.MapMode = "FlatFace"
sketch17.AttachmentOffset = App.Placement(V(0, 0, -23), App.Rotation())
sketch17.addGeometry([
    Part.LineSegment(V(-43, -2, 0), V(-43, 0, 0)),
    Part.LineSegment(V(-43, 0, 0), V(-27, 0, 0)),
    Part.LineSegment(V(-27, 0, 0), V(-27, -2, 0)),
    Part.LineSegment(V(-27, -2, 0), V(-43, -2, 0)),
], False)
sketch17.addConstraint([
    Sketcher.Constraint("Coincident", 0, 2, 1, 1),
    Sketcher.Constraint("Coincident", 1, 2, 2, 1),
    Sketcher.Constraint("Coincident", 2, 2, 3, 1),
    Sketcher.Constraint("Coincident", 3, 2, 0, 1),
    Sketcher.Constraint("Vertical", 0),
    Sketcher.Constraint("Horizontal", 1),
    Sketcher.Constraint("Vertical", 2),
    Sketcher.Constraint("Horizontal", 3),
    Sketcher.Constraint("PointOnObject", 0, 2, -1),
    Sketcher.Constraint("DistanceX", 1, 1, 1, 2, Q("16 mm")),
    Sketcher.Constraint("DistanceY", 0, 1, 0, 2, Q("2 mm")),
    Sketcher.Constraint("DistanceX", 0, 2, -1, 1, Q("43 mm")),
])
pocket5 = body.newObject("PartDesign::Pocket", "Pocket004")
pocket5.Profile = sketch17
pocket5.Length = 30
pocket5.Reversed = True

sketch18 = body.newObject("Sketcher::SketchObject", "Sketch017")
sketch18.AttachmentSupport = (doc.getObject("XY_Plane"), [""])
sketch18.MapMode = "FlatFace"
sketch18.AttachmentOffset = App.Placement(V(0, 0, -23.5), App.Rotation())
sketch18.addGeometry(Part.Circle(V(-35, 11.5, 0), V(0, 0, 1), 3), False)
sketch18.addConstraint([
    Sketcher.Constraint("Diameter", 0, Q("6 mm")),
    Sketcher.Constraint("DistanceX", 0, 3, -1, 1, Q("35 mm")),
    Sketcher.Constraint("DistanceY", -1, 1, 0, 3, Q("11.5 mm")),
])
pocket6 = body.newObject("PartDesign::Pocket", "Pocket005")
pocket6.Profile = sketch18
pocket6.Length = 50

sketch19 = body.newObject("Sketcher::SketchObject", "Sketch018")
sketch19.AttachmentSupport = (doc.getObject("XZ_Plane"), [""])
sketch19.MapMode = "FlatFace"
sketch19.AttachmentOffset = App.Placement(V(0, 0, 35), App.Rotation())
sketch19.addGeometry([
    Part.LineSegment(V(0, 0, 0), V(-70, 0, 0)),
    Part.LineSegment(V(-70, 0, 0), V(-70, -61, 0)),
    Part.LineSegment(V(-70, -61, 0), V(0, -61, 0)),
    Part.LineSegment(V(0, -61, 0), V(0, 0, 0)),
], False)
sketch19.addConstraint([
    Sketcher.Constraint("Coincident", 0, 2, 1, 1),
    Sketcher.Constraint("Coincident", 1, 2, 2, 1),
    Sketcher.Constraint("Coincident", 2, 2, 3, 1),
    Sketcher.Constraint("Coincident", 3, 2, 0, 1),
    Sketcher.Constraint("Horizontal", 0),
    Sketcher.Constraint("Vertical", 1),
    Sketcher.Constraint("Horizontal", 2),
    Sketcher.Constraint("Vertical", 3),
    Sketcher.Constraint("Coincident", 3, 2, -1, 1),
    Sketcher.Constraint("DistanceX", 0, 2, 0, 1, Q("70 mm")),
    Sketcher.Constraint("DistanceY", 1, 2, 1, 1, Q("61 mm")),
])
pad13 = body.newObject("PartDesign::Pad", "Pad012")
pad13.Profile = sketch19
pad13.Length = 10
pad13.Reversed = True

sketch20 = body.newObject("Sketcher::SketchObject", "Sketch019")
sketch20.AttachmentSupport = (doc.getObject("XY_Plane"), [""])
sketch20.MapMode = "FlatFace"
sketch20.AttachmentOffset = App.Placement(V(0, 0, -23.5), App.Rotation())
sketch20.addGeometry(Part.Circle(V(-35, 11.5, 0), V(0, 0, 1), 6), False)
sketch20.addConstraint([
    Sketcher.Constraint("Diameter", 0, Q("12 mm")),
    Sketcher.Constraint("DistanceX", 0, 3, -1, 1, Q("35 mm")),
    Sketcher.Constraint("DistanceY", -1, 1, 0, 3, Q("11.5 mm")),
])
pocket7 = body.newObject("PartDesign::Pocket", "Pocket006")
pocket7.Profile = sketch20
pocket7.Length = 60

doc.recompute()
